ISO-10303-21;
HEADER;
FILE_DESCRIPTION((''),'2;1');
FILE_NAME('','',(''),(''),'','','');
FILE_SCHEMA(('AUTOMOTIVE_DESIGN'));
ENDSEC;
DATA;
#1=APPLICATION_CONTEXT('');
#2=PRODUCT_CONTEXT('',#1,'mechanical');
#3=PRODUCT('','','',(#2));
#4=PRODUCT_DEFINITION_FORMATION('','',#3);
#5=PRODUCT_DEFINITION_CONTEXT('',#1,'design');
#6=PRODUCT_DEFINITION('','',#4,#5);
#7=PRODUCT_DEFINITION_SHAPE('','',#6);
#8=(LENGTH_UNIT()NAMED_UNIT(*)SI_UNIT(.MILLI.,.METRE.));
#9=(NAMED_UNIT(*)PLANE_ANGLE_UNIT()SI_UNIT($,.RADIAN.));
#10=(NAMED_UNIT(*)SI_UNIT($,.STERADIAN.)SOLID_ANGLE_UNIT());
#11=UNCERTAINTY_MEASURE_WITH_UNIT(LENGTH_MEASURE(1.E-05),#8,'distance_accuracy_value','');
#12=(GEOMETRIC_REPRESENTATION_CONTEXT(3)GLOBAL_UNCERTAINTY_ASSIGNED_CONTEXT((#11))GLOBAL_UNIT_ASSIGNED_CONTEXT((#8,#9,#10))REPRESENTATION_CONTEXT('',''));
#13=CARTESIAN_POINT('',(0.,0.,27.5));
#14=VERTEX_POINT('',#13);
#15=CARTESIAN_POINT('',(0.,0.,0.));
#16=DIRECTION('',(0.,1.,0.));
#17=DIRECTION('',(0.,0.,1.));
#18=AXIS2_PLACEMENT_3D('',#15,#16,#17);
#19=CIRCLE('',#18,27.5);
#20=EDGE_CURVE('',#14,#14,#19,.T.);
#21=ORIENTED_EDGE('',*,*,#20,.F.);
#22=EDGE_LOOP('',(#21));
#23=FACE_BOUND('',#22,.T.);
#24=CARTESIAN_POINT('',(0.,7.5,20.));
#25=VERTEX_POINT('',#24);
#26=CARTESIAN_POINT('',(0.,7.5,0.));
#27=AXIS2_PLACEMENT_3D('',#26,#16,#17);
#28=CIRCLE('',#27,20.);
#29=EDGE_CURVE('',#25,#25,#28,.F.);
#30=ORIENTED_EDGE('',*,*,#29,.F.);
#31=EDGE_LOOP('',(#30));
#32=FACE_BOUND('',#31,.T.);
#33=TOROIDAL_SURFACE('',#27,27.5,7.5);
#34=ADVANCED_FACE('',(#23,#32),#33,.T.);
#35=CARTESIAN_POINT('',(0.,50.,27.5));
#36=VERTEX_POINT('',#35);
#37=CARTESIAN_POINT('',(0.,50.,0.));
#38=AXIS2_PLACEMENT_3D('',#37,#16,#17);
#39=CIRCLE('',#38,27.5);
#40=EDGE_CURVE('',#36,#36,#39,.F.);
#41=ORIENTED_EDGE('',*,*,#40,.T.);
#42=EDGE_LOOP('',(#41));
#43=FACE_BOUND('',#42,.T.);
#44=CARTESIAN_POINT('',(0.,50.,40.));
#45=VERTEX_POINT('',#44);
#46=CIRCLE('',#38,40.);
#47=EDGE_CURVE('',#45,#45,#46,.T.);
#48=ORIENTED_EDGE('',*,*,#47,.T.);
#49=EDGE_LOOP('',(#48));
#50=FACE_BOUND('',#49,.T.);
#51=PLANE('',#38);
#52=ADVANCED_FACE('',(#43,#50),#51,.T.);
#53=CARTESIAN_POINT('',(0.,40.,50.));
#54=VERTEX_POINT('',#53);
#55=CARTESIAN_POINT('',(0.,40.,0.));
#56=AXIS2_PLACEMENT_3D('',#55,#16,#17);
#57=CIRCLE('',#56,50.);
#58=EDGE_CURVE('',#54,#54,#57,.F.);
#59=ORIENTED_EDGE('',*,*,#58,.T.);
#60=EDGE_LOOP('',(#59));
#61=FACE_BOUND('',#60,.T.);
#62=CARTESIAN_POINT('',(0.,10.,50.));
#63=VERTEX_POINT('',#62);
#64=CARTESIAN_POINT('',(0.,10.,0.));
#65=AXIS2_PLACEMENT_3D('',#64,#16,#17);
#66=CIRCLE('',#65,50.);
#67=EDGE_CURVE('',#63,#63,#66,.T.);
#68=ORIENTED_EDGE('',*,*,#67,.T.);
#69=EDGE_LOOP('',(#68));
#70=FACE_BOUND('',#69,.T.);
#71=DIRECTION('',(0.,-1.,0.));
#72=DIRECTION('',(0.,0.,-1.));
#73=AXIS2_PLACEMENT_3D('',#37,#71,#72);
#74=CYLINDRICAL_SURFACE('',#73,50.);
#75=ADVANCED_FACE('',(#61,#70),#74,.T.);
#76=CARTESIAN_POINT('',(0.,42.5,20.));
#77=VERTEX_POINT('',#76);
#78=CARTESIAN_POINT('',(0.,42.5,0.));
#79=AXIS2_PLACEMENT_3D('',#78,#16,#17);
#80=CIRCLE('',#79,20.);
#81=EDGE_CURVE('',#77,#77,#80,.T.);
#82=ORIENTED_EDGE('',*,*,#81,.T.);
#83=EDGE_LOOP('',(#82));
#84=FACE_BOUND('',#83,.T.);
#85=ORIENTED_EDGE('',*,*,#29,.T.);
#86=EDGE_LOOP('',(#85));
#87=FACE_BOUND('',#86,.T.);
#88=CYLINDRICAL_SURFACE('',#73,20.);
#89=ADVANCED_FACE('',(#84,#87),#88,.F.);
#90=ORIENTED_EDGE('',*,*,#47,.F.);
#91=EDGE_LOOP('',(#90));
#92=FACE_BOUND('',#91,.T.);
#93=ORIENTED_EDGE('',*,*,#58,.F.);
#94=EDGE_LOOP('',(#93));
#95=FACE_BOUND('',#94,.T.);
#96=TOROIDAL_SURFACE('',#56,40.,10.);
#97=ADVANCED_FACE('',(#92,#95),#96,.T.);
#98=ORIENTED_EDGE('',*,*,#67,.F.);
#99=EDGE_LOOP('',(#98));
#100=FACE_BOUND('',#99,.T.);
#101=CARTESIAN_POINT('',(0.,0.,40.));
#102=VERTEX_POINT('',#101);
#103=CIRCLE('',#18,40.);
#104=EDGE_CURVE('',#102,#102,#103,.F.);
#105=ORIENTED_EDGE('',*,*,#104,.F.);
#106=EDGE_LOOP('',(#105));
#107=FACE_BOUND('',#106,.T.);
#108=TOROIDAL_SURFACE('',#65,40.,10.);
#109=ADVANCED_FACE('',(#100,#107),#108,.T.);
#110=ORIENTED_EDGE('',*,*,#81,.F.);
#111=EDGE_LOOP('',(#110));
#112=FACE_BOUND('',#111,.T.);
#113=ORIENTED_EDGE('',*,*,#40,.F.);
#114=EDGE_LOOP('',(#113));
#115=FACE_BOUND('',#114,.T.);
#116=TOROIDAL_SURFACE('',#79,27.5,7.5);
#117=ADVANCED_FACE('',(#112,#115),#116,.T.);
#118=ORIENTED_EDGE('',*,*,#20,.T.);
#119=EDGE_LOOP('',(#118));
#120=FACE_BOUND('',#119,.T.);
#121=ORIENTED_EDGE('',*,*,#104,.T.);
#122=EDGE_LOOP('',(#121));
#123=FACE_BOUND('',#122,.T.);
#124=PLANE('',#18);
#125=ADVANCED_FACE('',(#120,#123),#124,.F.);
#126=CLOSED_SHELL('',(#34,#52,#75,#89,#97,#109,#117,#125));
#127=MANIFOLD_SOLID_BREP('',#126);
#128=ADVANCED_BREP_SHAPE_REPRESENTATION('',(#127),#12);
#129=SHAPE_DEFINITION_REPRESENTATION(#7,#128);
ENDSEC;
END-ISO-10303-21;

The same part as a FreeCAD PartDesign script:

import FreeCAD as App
import Part
import Sketcher
Q = App.Units.Quantity


def edges_at(feature, points):
    """Names of the edges that pass closest to the given points."""
    edges = feature.Shape.Edges
    near = lambda p: min(range(len(edges)), key=lambda i: edges[i].distToShape(Part.Vertex(*p))[0])
    return sorted({f"Edge{near(p) + 1}" for p in points})

doc = App.newDocument("Part")
body = doc.addObject("PartDesign::Body", "Body")

sketch1 = doc.addObject("Sketcher::SketchObject", "Sketch")
body.addObject(sketch1)
sketch1.AttachmentSupport = (doc.XZ_Plane, [""])
sketch1.MapMode = "FlatFace"
sketch1.addGeometry(Part.Circle(App.Vector(0, 0, 0), App.Vector(0, 0, 1), 50), False)
sketch1.addGeometry(Part.Circle(App.Vector(0, 0, 0), App.Vector(0, 0, 1), 20), False)
sketch1.addConstraint(Sketcher.Constraint("Coincident", 0, 3, -1, 1))
sketch1.addConstraint(Sketcher.Constraint("Coincident", 1, 3, -1, 1))
sketch1.addConstraint(Sketcher.Constraint("Diameter", 0, Q("100 mm")))
sketch1.addConstraint(Sketcher.Constraint("Diameter", 1, Q("40 mm")))
pad1 = doc.addObject("PartDesign::Pad", "Pad")
body.addObject(pad1)
pad1.Profile = sketch1
pad1.Length = 50
pad1.Reversed = True
doc.recompute()

fillet = doc.addObject("PartDesign::Fillet", "Fillet")
body.addObject(fillet)
fillet.Base = (pad1, edges_at(pad1, [(0, 0, -50), (0, 50, -50)]))
fillet.Radius = 10
doc.recompute()

fillet2 = doc.addObject("PartDesign::Fillet", "Fillet001")
body.addObject(fillet2)
fillet2.Base = (fillet, edges_at(fillet, [(0, 0, -20), (0, 50, -20)]))
fillet2.Radius = 7.5

doc.recompute()
